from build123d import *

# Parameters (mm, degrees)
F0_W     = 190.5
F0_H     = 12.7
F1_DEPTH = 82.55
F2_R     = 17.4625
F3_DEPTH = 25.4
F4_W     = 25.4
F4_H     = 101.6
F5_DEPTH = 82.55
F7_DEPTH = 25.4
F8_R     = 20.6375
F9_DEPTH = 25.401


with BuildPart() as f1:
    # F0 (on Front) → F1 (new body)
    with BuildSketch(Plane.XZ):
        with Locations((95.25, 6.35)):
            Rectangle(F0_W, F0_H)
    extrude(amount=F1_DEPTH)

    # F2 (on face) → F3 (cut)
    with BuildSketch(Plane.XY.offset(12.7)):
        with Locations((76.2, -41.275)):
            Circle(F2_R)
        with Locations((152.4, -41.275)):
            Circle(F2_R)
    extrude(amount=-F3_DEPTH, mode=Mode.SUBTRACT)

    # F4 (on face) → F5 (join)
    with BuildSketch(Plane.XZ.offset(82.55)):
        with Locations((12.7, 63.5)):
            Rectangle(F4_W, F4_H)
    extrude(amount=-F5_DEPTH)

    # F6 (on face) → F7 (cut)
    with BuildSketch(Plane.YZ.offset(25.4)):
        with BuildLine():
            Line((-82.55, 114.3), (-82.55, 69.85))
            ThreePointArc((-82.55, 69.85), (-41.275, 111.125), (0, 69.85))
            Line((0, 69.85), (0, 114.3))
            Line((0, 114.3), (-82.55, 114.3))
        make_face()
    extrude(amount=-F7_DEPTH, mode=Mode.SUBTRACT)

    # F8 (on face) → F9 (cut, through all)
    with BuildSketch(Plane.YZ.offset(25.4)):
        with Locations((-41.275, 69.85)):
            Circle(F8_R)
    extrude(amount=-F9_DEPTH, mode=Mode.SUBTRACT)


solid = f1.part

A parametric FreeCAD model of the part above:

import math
import FreeCAD as App
import Part
import Sketcher
Q = App.Units.Quantity


def add_polygon(sketch, points):
    """Adds a closed chain of lines whose ends are joined by coincident constraints."""
    first, n = sketch.GeometryCount, len(points)
    for a, b in zip(points, points[1:] + points[:1]):
        sketch.addGeometry(Part.LineSegment(App.Vector(*a, 0), App.Vector(*b, 0)), False)
    for i in range(n):
        sketch.addConstraint(Sketcher.Constraint("Coincident", first + i, 2, first + (i + 1) % n, 1))

doc = App.newDocument("Part")
body = doc.addObject("PartDesign::Body", "Body")

# Sketch on XZ plane
sketch1 = doc.addObject("Sketcher::SketchObject", "Sketch")
body.addObject(sketch1)
sketch1.AttachmentSupport = (doc.XZ_Plane, [""])
sketch1.MapMode = "FlatFace"
add_polygon(sketch1, [(0, 13), (0, 0), (190, 0), (190, 13)])  # lines 0-3
sketch1.addConstraint([
    Sketcher.Constraint("Vertical", 0),
    Sketcher.Constraint("Horizontal", 1),
    Sketcher.Constraint("Vertical", 2),
    Sketcher.Constraint("Horizontal", 3),
    Sketcher.Constraint("Coincident", 0, 2, -1, 1),
    Sketcher.Constraint("DistanceX", 1, 1, 1, 2, Q("7.5 in")),
    Sketcher.Constraint("DistanceY", 0, 2, 0, 1, Q("0.5 in")),
])
pad1 = doc.addObject("PartDesign::Pad", "Pad")
body.addObject(pad1)
pad1.Profile = sketch1
pad1.Length = Q("3.25 in")

# Sketch on XY plane
sketch2 = doc.addObject("Sketcher::SketchObject", "Sketch001")
body.addObject(sketch2)
sketch2.AttachmentSupport = (doc.XY_Plane, [""])
sketch2.MapMode = "FlatFace"
sketch2.AttachmentOffset = App.Placement(App.Vector(0, 0, 0.5 * 25.4), App.Rotation())
sketch2.addGeometry([
    Part.Circle(App.Vector(76, -41, 0), App.Vector(0, 0, 1), 17),
    Part.Circle(App.Vector(152, -41, 0), App.Vector(0, 0, 1), 17),
], False)
sketch2.addConstraint([
    Sketcher.Constraint("Equal", 0, 1),
    Sketcher.Constraint("Horizontal", 0, 3, 1, 3),
    Sketcher.Constraint("Diameter", 0, Q("1.375 in")),
    Sketcher.Constraint("DistanceX", -1, 1, 0, 3, Q("3 in")),
    Sketcher.Constraint("DistanceX", -1, 1, 1, 3, Q("6 in")),
    Sketcher.Constraint("DistanceY", 0, 3, -1, 1, Q("1.625 in")),
])
pocket1 = doc.addObject("PartDesign::Pocket", "Pocket")
body.addObject(pocket1)
pocket1.Profile = sketch2
pocket1.Length = Q("1 in")

# Sketch on XZ plane
sketch3 = doc.addObject("Sketcher::SketchObject", "Sketch002")
body.addObject(sketch3)
sketch3.AttachmentSupport = (doc.XZ_Plane, [""])
sketch3.MapMode = "FlatFace"
sketch3.AttachmentOffset = App.Placement(App.Vector(0, 0, 3.25 * 25.4), App.Rotation())
add_polygon(sketch3, [(0, 114), (0, 13), (25, 13), (25, 114)])  # lines 0-3
sketch3.addConstraint([
    Sketcher.Constraint("Vertical", 0),
    Sketcher.Constraint("Horizontal", 1),
    Sketcher.Constraint("Vertical", 2),
    Sketcher.Constraint("Horizontal", 3),
    Sketcher.Constraint("PointOnObject", 0, 2, -2),
    Sketcher.Constraint("DistanceX", 1, 1, 1, 2, Q("1 in")),
    Sketcher.Constraint("DistanceY", 0, 2, 0, 1, Q("4 in")),
    Sketcher.Constraint("DistanceY", -1, 1, 0, 2, Q("0.5 in")),
])
pad2 = doc.addObject("PartDesign::Pad", "Pad001")
body.addObject(pad2)
pad2.Profile = sketch3
pad2.Length = Q("3.25 in")
pad2.Reversed = True

# Sketch on YZ plane
sketch4 = doc.addObject("Sketcher::SketchObject", "Sketch003")
body.addObject(sketch4)
sketch4.AttachmentSupport = (doc.YZ_Plane, [""])
sketch4.MapMode = "FlatFace"
sketch4.AttachmentOffset = App.Placement(App.Vector(0, 0, 1 * 25.4), App.Rotation())
sketch4.addGeometry([
    Part.LineSegment(App.Vector(-83, 114, 0), App.Vector(-83, 70, 0)),
    Part.ArcOfCircle(Part.Circle(App.Vector(-41, 70, 0), App.Vector(0, 0, 1), 41), math.radians(0), math.radians(180)),
    Part.LineSegment(App.Vector(0, 70, 0), App.Vector(0, 114, 0)),
    Part.LineSegment(App.Vector(0, 114, 0), App.Vector(-83, 114, 0)),
], False)
sketch4.addConstraint([
    Sketcher.Constraint("Tangent", 0, 2, 1, 2),
    Sketcher.Constraint("Tangent", 1, 1, 2, 1),
    Sketcher.Constraint("Coincident", 2, 2, 3, 1),
    Sketcher.Constraint("Coincident", 3, 2, 0, 1),
    Sketcher.Constraint("Vertical", 0),
    Sketcher.Constraint("Vertical", 2),
    Sketcher.Constraint("Horizontal", 3),
    Sketcher.Constraint("PointOnObject", 1, 1, -2),
    Sketcher.Constraint("Radius", 1, Q("1.625 in")),
    Sketcher.Constraint("DistanceY", 0, 2, 0, 1, Q("1.75 in")),
    Sketcher.Constraint("DistanceY", -1, 1, 2, 2, Q("4.5 in")),
])
pocket2 = doc.addObject("PartDesign::Pocket", "Pocket001")
body.addObject(pocket2)
pocket2.Profile = sketch4
pocket2.Length = Q("1 in")

# Sketch on YZ plane
sketch5 = doc.addObject("Sketcher::SketchObject", "Sketch004")
body.addObject(sketch5)
sketch5.AttachmentSupport = (doc.YZ_Plane, [""])
sketch5.MapMode = "FlatFace"
sketch5.AttachmentOffset = App.Placement(App.Vector(0, 0, 1 * 25.4), App.Rotation())
sketch5.addGeometry(Part.Circle(App.Vector(-41, 70, 0), App.Vector(0, 0, 1), 21), False)
sketch5.addConstraint([
    Sketcher.Constraint("Diameter", 0, Q("1.625 in")),
    Sketcher.Constraint("DistanceY", -1, 1, 0, 3, Q("2.75 in")),
    Sketcher.Constraint("DistanceX", 0, 3, -1, 1, Q("1.625 in")),
])
pocket3 = doc.addObject("PartDesign::Pocket", "Pocket002")
body.addObject(pocket3)
pocket3.Profile = sketch5
pocket3.Type = "ThroughAll"

doc.recompute()
